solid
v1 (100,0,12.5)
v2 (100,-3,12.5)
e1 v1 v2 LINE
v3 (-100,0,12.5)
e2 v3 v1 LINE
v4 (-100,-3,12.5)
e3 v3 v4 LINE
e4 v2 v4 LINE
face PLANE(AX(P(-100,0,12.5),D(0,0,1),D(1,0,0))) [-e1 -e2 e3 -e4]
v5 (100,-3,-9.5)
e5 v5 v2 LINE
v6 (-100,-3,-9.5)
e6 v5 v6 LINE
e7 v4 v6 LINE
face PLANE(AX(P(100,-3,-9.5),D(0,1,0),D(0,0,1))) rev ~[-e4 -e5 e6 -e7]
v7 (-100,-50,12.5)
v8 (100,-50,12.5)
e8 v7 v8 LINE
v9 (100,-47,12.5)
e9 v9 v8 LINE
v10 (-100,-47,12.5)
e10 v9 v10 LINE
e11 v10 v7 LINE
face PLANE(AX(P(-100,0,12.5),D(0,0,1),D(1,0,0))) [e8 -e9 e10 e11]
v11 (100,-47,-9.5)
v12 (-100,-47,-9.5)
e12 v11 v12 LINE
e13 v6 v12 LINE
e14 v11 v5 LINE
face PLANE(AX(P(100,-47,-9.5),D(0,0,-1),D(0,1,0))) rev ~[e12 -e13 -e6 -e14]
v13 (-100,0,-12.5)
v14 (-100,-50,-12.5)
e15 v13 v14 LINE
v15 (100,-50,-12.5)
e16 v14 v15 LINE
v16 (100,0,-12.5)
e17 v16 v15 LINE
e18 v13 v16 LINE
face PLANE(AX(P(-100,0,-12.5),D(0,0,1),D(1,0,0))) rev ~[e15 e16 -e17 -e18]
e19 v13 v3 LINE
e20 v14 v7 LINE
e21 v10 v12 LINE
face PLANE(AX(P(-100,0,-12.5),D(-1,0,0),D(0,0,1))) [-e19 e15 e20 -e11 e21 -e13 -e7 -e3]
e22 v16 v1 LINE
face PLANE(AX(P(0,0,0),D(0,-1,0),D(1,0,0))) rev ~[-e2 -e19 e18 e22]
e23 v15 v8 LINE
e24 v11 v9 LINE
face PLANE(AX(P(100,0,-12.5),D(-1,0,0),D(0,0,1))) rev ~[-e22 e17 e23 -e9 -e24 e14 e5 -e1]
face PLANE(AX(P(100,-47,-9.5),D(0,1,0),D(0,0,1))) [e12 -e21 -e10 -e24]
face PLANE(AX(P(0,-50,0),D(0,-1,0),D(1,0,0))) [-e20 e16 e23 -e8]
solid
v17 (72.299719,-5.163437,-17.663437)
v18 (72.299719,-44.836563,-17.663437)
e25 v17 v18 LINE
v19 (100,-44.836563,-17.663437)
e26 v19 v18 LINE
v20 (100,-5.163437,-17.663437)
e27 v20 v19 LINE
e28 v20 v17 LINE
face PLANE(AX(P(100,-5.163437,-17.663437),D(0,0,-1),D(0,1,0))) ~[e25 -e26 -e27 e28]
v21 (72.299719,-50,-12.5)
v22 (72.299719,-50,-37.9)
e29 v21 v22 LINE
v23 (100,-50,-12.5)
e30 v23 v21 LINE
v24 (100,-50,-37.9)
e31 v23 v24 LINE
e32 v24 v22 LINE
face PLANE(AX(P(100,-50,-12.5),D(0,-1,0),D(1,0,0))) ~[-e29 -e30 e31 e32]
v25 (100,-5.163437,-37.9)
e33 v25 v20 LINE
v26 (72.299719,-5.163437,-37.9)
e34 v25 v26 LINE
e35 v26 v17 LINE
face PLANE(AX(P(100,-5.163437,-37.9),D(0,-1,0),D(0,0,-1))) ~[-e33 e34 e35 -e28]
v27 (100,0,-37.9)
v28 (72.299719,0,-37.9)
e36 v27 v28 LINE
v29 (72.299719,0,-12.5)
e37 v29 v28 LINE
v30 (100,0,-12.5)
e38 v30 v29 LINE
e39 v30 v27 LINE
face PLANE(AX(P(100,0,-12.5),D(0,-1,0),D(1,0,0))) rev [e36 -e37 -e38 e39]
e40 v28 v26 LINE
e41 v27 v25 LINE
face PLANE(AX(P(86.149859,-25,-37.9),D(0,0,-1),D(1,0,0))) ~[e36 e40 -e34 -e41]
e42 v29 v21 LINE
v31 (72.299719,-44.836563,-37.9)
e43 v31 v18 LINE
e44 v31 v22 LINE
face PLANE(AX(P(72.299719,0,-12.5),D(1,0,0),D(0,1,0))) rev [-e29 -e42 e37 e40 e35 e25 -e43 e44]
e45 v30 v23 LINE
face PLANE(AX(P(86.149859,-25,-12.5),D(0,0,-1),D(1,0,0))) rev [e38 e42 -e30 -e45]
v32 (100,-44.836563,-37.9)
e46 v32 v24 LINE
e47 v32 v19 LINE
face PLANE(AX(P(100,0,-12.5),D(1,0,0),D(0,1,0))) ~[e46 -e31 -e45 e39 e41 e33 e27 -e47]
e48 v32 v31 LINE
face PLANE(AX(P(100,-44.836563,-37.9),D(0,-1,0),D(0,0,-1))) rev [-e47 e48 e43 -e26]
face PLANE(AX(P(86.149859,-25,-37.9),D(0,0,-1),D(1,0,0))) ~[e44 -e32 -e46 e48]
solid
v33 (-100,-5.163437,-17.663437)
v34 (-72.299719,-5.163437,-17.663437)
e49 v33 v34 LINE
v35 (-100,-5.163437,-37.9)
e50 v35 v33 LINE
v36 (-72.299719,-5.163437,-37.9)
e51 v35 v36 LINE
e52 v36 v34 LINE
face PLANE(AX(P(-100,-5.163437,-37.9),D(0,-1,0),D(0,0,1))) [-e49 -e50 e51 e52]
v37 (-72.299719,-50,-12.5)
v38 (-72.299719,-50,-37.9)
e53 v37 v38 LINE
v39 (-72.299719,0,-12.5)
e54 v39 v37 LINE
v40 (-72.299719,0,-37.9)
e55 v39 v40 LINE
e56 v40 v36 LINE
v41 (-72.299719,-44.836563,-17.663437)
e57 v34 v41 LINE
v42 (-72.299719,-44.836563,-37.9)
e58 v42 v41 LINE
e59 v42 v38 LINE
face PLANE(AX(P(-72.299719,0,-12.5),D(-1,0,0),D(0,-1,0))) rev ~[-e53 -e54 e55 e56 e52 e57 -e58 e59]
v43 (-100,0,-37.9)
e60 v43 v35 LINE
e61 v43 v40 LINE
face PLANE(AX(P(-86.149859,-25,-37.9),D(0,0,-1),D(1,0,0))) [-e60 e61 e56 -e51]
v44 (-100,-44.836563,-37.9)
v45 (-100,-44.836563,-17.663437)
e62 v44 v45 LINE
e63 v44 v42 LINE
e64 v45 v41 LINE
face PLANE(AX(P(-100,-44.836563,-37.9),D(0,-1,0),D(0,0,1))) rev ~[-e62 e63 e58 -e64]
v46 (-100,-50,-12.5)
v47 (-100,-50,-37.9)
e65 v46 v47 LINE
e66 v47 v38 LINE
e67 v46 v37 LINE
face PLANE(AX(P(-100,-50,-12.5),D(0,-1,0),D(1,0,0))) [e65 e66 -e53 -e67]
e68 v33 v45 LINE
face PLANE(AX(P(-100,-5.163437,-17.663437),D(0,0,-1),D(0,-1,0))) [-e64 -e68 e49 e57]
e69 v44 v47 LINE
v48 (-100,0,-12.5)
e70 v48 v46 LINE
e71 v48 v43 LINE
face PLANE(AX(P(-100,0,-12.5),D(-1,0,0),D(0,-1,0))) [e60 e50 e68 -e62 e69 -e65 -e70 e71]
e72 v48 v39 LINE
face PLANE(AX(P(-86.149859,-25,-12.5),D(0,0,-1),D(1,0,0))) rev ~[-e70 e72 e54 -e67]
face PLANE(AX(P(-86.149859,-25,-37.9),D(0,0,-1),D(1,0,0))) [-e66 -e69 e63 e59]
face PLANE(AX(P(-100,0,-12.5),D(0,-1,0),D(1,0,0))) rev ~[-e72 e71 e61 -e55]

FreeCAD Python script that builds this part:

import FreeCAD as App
import Part
import Sketcher

V = App.Vector
Q = App.Units.Quantity

doc = App.newDocument("Part")
body = doc.addObject("PartDesign::Body", "Body")

# Sketch on XZ plane
sketch1 = body.newObject("Sketcher::SketchObject", "Sketch")
sketch1.AttachmentSupport = (doc.getObject("XZ_Plane"), [""])
sketch1.MapMode = "FlatFace"
sketch1.addGeometry(Part.LineSegment(V(-100, 12, 0), V(-100, -12, 0)), False)
sketch1.addGeometry(Part.LineSegment(V(-100, -12, 0), V(100, -12, 0)), False)
sketch1.addGeometry(Part.LineSegment(V(100, -12, 0), V(100, 12, 0)), False)
sketch1.addGeometry(Part.LineSegment(V(100, 12, 0), V(-100, 12, 0)), False)
sketch1.addConstraint(Sketcher.Constraint("Coincident", 0, 2, 1, 1))
sketch1.addConstraint(Sketcher.Constraint("Coincident", 1, 2, 2, 1))
sketch1.addConstraint(Sketcher.Constraint("Coincident", 2, 2, 3, 1))
sketch1.addConstraint(Sketcher.Constraint("Coincident", 3, 2, 0, 1))
sketch1.addConstraint(Sketcher.Constraint("Vertical", 0))
sketch1.addConstraint(Sketcher.Constraint("Horizontal", 1))
sketch1.addConstraint(Sketcher.Constraint("Vertical", 2))
sketch1.addConstraint(Sketcher.Constraint("Horizontal", 3))
sketch1.addConstraint(Sketcher.Constraint("Symmetric", 0, 2, 2, 2, -1, 1))
sketch1.addConstraint(Sketcher.Constraint("DistanceX", 1, 1, 1, 2, Q("200 mm")))
sketch1.addConstraint(Sketcher.Constraint("DistanceY", 0, 2, 0, 1, Q("25 mm")))
pad1 = body.newObject("PartDesign::Pad", "Pad")
pad1.Profile = sketch1
pad1.Length = 50

# Sketch on YZ plane
sketch2 = body.newObject("Sketcher::SketchObject", "Sketch001")
sketch2.AttachmentSupport = (doc.getObject("YZ_Plane"), [""])
sketch2.MapMode = "FlatFace"
sketch2.AttachmentOffset = App.Placement(V(0, 0, 100), App.Rotation())
sketch2.addGeometry(Part.LineSegment(V(-47, 12, 0), V(-47, -10, 0)), False)
sketch2.addGeometry(Part.LineSegment(V(-47, -10, 0), V(-3, -10, 0)), False)
sketch2.addGeometry(Part.LineSegment(V(-3, -10, 0), V(-3, 12, 0)), False)
sketch2.addGeometry(Part.LineSegment(V(-3, 12, 0), V(-47, 12, 0)), False)
sketch2.addConstraint(Sketcher.Constraint("Coincident", 0, 2, 1, 1))
sketch2.addConstraint(Sketcher.Constraint("Coincident", 1, 2, 2, 1))
sketch2.addConstraint(Sketcher.Constraint("Coincident", 2, 2, 3, 1))
sketch2.addConstraint(Sketcher.Constraint("Coincident", 3, 2, 0, 1))
sketch2.addConstraint(Sketcher.Constraint("Vertical", 0))
sketch2.addConstraint(Sketcher.Constraint("Horizontal", 1))
sketch2.addConstraint(Sketcher.Constraint("Vertical", 2))
sketch2.addConstraint(Sketcher.Constraint("Horizontal", 3))
sketch2.addConstraint(Sketcher.Constraint("DistanceX", 1, 1, 1, 2, Q("44 mm")))
sketch2.addConstraint(Sketcher.Constraint("DistanceY", 0, 2, 0, 1, Q("22 mm")))
sketch2.addConstraint(Sketcher.Constraint("DistanceX", 0, 2, -1, 1, Q("47 mm")))
sketch2.addConstraint(Sketcher.Constraint("DistanceY", 0, 2, -1, 1, Q("9.5 mm")))
pocket1 = body.newObject("PartDesign::Pocket", "Pocket")
pocket1.Profile = sketch2
pocket1.Type = "ThroughAll"
body2 = doc.addObject("PartDesign::Body", "Body001")

# Sketch on XY plane
sketch3 = body2.newObject("Sketcher::SketchObject", "Sketch002")
sketch3.AttachmentSupport = (doc.getObject("XY_Plane001"), [""])
sketch3.MapMode = "FlatFace"
sketch3.AttachmentOffset = App.Placement(V(0, 0, -12.5), App.Rotation())
sketch3.addGeometry(Part.LineSegment(V(-100, -50, 0), V(-100, 0, 0)), False)
sketch3.addGeometry(Part.LineSegment(V(-100, 0, 0), V(-72, 0, 0)), False)
sketch3.addGeometry(Part.LineSegment(V(-72, 0, 0), V(-72, -50, 0)), False)
sketch3.addGeometry(Part.LineSegment(V(-72, -50, 0), V(-100, -50, 0)), False)
sketch3.addConstraint(Sketcher.Constraint("Coincident", 0, 2, 1, 1))
sketch3.addConstraint(Sketcher.Constraint("Coincident", 1, 2, 2, 1))
sketch3.addConstraint(Sketcher.Constraint("Coincident", 2, 2, 3, 1))
sketch3.addConstraint(Sketcher.Constraint("Coincident", 3, 2, 0, 1))
sketch3.addConstraint(Sketcher.Constraint("Vertical", 0))
sketch3.addConstraint(Sketcher.Constraint("Horizontal", 1))
sketch3.addConstraint(Sketcher.Constraint("Vertical", 2))
sketch3.addConstraint(Sketcher.Constraint("Horizontal", 3))
sketch3.addConstraint(Sketcher.Constraint("PointOnObject", 0, 2, -1))
sketch3.addConstraint(Sketcher.Constraint("DistanceY", 0, 1, 0, 2, Q("50 mm")))
sketch3.addConstraint(Sketcher.Constraint("DistanceX", 0, 2, -1, 1, Q("100 mm")))
sketch3.addConstraint(Sketcher.Constraint("DistanceX", 1, 1, 1, 2, Q("27.700281 mm")))
pad2 = body2.newObject("PartDesign::Pad", "Pad001")
pad2.Profile = sketch3
pad2.Length = 25.4
pad2.Reversed = True

# Sketch on YZ plane
sketch4 = body2.newObject("Sketcher::SketchObject", "Sketch003")
sketch4.AttachmentSupport = (doc.getObject("YZ_Plane001"), [""])
sketch4.MapMode = "FlatFace"
sketch4.AttachmentOffset = App.Placement(V(0, 0, -100), App.Rotation())
sketch4.addGeometry(Part.LineSegment(V(-5, -18, 0), V(-5, -38, 0)), False)
sketch4.addGeometry(Part.LineSegment(V(-5, -38, 0), V(-45, -38, 0)), False)
sketch4.addGeometry(Part.LineSegment(V(-45, -38, 0), V(-45, -18, 0)), False)
sketch4.addGeometry(Part.LineSegment(V(-45, -18, 0), V(-5, -18, 0)), False)
sketch4.addConstraint(Sketcher.Constraint("Coincident", 0, 2, 1, 1))
sketch4.addConstraint(Sketcher.Constraint("Coincident", 1, 2, 2, 1))
sketch4.addConstraint(Sketcher.Constraint("Coincident", 2, 2, 3, 1))
sketch4.addConstraint(Sketcher.Constraint("Coincident", 3, 2, 0, 1))
sketch4.addConstraint(Sketcher.Constraint("Vertical", 0))
sketch4.addConstraint(Sketcher.Constraint("Horizontal", 1))
sketch4.addConstraint(Sketcher.Constraint("Vertical", 2))
sketch4.addConstraint(Sketcher.Constraint("Horizontal", 3))
sketch4.addConstraint(Sketcher.Constraint("DistanceY", 0, 2, -1, 1, Q("37.9 mm")))
sketch4.addConstraint(Sketcher.Constraint("DistanceX", 1, 2, 1, 1, Q("39.673126 mm")))
sketch4.addConstraint(Sketcher.Constraint("DistanceY", 0, 2, 0, 1, Q("20.236563 mm")))
sketch4.addConstraint(Sketcher.Constraint("DistanceX", 0, 2, -1, 1, Q("5.163437 mm")))
pocket2 = body2.newObject("PartDesign::Pocket", "Pocket001")
pocket2.Profile = sketch4
pocket2.Type = "ThroughAll"
pocket2.Reversed = True
body3 = doc.addObject("PartDesign::Body", "Body002")
doc.recompute()

mirroring = doc.addObject("Part::Mirroring", "Mirroring")
mirroring.Source = body2
mirroring.Base = V(0, 0, 0)
mirroring.Normal = V(1, 0, 0)
body3.BaseFeature = mirroring
doc.recompute()
mirroring.Visibility = False

doc.recompute()
